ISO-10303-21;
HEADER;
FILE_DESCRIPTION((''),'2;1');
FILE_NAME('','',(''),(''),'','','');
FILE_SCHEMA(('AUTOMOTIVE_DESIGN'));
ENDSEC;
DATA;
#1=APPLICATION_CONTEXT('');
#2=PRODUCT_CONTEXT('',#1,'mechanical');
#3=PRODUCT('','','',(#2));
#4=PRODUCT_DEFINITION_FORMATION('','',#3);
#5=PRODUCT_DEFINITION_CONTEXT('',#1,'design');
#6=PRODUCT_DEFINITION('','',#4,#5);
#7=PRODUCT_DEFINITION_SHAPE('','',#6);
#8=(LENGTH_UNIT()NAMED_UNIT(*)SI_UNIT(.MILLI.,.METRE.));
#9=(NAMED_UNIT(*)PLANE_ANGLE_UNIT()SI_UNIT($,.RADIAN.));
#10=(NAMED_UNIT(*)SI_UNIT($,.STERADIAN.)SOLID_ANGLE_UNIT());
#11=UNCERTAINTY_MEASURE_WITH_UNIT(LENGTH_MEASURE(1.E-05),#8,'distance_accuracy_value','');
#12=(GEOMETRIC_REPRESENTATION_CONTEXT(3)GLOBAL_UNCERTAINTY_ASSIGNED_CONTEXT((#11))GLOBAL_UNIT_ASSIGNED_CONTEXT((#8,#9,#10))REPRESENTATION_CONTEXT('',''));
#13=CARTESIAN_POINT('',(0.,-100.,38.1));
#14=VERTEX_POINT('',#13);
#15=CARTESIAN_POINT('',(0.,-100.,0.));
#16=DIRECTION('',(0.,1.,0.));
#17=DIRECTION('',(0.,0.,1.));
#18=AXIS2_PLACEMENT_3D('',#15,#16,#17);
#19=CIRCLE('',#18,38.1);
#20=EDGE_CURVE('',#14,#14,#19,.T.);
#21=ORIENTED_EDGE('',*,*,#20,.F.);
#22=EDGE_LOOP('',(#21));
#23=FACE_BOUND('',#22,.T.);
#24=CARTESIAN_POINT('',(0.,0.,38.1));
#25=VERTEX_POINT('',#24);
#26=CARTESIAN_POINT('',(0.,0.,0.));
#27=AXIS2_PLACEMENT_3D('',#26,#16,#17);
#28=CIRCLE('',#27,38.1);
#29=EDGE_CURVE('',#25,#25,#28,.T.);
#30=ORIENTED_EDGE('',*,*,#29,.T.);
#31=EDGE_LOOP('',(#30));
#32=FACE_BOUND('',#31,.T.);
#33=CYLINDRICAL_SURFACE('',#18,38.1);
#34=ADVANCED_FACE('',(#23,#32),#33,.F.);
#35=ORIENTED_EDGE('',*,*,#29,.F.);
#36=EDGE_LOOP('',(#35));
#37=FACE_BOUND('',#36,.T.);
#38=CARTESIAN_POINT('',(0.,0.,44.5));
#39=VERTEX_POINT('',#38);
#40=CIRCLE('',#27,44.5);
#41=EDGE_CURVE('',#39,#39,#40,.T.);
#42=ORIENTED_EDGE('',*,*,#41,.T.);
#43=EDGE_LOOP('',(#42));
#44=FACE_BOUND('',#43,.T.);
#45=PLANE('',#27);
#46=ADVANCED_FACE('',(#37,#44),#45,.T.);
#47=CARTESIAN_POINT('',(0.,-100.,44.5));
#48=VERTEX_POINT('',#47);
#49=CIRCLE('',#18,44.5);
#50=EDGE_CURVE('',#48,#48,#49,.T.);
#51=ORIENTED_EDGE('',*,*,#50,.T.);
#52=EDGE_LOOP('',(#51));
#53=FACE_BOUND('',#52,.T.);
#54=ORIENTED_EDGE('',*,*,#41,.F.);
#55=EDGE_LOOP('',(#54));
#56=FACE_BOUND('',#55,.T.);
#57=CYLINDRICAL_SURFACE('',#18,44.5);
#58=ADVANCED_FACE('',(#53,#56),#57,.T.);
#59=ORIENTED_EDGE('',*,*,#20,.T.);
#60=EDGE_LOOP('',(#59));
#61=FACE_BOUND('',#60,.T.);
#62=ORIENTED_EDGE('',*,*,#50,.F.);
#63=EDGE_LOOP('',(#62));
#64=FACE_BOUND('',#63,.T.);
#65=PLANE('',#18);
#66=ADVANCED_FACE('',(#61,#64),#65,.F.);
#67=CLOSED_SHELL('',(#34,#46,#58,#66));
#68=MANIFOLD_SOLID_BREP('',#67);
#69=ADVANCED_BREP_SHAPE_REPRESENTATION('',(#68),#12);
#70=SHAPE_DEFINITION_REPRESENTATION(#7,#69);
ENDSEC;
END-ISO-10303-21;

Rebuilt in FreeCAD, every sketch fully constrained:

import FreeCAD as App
import Part
import Sketcher
Q = App.Units.Quantity

doc = App.newDocument("Part")
body = doc.addObject("PartDesign::Body", "Body")

# Sketch on XZ plane
sketch1 = body.newObject("Sketcher::SketchObject", "Sketch")
sketch1.AttachmentSupport = (doc.getObject("XZ_Plane"), [""])
sketch1.MapMode = "FlatFace"
sketch1.addGeometry([
    Part.Circle(App.Vector(0, 0, 0), App.Vector(0, 0, 1), 44),
    Part.Circle(App.Vector(0, 0, 0), App.Vector(0, 0, 1), 38),
], False)
sketch1.addConstraint([
    Sketcher.Constraint("Coincident", 0, 3, -1, 1),
    Sketcher.Constraint("Coincident", 1, 3, -1, 1),
    Sketcher.Constraint("Diameter", 0, Q("89 mm")),
    Sketcher.Constraint("Diameter", 1, Q("76.2 mm")),
])
pad1 = body.newObject("PartDesign::Pad", "Pad")
pad1.Profile = sketch1
pad1.Length = 100

doc.recompute()
